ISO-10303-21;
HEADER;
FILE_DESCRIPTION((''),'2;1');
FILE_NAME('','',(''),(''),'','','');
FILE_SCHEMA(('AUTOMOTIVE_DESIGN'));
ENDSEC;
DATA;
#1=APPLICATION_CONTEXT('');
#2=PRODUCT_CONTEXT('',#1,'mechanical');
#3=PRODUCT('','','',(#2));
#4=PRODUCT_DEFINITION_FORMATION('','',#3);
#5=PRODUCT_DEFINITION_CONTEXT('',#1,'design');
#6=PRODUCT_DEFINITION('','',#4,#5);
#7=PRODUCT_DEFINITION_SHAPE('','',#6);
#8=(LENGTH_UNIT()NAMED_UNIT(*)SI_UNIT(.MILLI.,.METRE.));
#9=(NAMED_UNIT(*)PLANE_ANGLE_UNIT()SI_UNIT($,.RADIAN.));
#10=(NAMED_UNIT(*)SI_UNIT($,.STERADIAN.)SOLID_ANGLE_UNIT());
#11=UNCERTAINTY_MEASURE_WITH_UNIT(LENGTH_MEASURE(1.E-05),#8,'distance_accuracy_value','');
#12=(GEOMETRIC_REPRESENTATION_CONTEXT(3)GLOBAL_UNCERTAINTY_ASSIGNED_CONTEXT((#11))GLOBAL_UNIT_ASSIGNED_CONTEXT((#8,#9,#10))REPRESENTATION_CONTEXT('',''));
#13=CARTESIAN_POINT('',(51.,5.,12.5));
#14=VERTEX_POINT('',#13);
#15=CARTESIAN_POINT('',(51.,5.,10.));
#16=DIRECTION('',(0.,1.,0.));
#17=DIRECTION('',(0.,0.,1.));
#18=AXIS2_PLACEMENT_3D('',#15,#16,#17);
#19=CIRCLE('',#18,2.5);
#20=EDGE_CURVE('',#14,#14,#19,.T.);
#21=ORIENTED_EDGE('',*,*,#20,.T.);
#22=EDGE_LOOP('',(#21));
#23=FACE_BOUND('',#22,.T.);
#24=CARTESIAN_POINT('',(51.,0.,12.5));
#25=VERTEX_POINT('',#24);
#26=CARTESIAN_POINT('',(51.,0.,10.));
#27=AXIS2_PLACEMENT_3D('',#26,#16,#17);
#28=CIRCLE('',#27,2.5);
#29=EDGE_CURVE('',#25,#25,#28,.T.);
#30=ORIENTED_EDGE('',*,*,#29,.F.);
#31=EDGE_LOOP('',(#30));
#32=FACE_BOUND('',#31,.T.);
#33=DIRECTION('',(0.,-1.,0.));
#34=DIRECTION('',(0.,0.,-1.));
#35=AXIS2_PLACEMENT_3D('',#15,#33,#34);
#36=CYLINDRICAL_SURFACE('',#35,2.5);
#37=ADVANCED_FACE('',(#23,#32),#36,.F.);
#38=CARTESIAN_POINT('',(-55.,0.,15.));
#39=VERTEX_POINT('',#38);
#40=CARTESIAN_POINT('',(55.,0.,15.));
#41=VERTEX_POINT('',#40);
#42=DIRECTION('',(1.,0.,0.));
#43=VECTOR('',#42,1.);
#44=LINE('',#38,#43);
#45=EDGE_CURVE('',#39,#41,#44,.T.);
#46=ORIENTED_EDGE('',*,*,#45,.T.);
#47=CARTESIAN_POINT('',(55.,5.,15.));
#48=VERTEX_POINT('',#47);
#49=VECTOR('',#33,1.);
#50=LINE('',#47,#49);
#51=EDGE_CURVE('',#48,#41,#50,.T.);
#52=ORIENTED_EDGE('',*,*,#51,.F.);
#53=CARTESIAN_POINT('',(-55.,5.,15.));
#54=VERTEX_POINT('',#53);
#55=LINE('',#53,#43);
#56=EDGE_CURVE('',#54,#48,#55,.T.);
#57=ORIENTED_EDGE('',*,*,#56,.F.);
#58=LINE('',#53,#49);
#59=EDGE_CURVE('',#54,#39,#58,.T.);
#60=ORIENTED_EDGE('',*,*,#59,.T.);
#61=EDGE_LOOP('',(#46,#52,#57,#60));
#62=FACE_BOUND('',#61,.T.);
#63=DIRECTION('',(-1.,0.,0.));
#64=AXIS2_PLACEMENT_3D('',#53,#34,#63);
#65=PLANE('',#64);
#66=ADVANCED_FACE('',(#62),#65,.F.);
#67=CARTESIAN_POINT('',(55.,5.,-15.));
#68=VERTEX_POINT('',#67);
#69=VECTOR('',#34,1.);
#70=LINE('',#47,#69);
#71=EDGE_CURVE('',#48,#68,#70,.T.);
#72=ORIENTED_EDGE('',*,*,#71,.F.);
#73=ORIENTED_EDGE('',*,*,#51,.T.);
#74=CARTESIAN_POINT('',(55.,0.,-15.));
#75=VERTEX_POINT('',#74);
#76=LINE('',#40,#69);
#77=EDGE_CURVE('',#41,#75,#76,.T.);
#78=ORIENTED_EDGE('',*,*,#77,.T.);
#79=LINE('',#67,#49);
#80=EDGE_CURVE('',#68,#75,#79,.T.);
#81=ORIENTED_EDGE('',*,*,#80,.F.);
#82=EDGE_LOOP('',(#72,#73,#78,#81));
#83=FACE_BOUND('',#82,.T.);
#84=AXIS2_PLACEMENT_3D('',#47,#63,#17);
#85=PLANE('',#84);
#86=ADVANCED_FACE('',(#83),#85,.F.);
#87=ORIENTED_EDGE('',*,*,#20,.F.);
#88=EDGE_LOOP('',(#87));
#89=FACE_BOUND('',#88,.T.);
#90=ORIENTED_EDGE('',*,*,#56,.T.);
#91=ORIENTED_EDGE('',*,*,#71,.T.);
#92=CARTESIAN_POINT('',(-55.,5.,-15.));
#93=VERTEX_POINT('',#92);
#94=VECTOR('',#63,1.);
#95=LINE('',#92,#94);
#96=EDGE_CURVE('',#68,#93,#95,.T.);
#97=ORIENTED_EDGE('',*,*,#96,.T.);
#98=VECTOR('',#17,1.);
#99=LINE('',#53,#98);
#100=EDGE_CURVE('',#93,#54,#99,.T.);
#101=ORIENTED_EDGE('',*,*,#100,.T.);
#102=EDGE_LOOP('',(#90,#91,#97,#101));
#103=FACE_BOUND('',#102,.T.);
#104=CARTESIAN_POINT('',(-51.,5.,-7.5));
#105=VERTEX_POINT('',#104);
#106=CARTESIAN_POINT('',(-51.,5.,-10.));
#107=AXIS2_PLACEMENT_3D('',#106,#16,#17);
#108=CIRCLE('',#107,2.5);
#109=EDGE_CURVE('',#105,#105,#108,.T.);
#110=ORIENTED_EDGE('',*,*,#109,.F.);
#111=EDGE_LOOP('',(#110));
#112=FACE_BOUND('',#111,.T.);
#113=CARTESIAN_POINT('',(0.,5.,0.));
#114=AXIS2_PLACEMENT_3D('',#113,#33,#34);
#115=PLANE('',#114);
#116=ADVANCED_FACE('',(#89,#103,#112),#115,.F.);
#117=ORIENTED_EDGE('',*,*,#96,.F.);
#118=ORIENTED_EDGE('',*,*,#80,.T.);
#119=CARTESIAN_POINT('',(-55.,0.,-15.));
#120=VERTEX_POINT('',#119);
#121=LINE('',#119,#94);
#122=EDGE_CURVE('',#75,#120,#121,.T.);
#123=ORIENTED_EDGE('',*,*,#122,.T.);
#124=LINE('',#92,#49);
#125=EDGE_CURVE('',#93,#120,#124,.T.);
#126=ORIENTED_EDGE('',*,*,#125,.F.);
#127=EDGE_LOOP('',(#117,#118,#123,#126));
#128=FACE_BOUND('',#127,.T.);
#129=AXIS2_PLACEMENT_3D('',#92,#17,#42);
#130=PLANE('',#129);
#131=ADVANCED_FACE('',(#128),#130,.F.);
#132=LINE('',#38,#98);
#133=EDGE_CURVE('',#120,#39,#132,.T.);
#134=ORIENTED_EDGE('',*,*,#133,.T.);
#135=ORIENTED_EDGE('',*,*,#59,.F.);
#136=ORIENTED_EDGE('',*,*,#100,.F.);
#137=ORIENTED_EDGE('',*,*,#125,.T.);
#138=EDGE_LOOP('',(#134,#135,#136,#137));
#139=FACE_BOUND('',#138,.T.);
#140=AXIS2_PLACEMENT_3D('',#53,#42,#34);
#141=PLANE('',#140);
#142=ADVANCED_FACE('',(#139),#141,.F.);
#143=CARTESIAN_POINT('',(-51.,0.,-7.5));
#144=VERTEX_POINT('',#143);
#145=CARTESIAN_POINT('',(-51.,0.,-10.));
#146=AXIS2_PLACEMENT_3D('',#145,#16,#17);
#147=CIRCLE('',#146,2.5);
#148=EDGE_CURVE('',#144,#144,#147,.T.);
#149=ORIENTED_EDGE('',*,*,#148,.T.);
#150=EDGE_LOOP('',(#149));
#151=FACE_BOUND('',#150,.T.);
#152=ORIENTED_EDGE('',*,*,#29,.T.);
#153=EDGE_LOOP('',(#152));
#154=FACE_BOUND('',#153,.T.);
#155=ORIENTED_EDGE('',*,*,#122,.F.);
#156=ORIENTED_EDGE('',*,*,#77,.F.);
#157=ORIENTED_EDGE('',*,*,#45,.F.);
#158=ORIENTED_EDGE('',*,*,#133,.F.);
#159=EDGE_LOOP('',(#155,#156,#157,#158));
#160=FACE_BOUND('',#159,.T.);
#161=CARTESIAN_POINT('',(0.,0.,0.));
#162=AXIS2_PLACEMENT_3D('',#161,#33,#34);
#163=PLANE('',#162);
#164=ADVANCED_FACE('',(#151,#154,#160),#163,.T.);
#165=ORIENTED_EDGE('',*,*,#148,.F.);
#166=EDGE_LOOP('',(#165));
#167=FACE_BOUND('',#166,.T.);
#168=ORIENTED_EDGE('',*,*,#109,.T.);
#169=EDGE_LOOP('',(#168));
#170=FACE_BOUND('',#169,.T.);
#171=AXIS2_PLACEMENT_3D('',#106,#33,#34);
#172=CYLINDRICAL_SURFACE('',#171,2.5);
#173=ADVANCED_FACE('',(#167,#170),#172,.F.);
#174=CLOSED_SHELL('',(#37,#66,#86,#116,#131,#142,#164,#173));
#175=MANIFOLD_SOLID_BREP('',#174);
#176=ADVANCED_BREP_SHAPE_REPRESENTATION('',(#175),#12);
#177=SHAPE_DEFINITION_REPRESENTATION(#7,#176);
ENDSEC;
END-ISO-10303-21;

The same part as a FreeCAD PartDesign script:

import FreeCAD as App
import Part
import Sketcher
from FreeCAD import Vector


def add_polygon(sketch, points):
    """Adds a closed chain of lines whose ends are joined by coincident constraints."""
    first, n = sketch.GeometryCount, len(points)
    for a, b in zip(points, points[1:] + points[:1]):
        sketch.addGeometry(Part.LineSegment(App.Vector(*a, 0), App.Vector(*b, 0)), False)
    for i in range(n):
        sketch.addConstraint(Sketcher.Constraint("Coincident", first + i, 2, first + (i + 1) % n, 1))

doc = App.newDocument("Part")
body = doc.addObject("PartDesign::Body", "Body")

# Sketch on XZ plane
sketch1 = doc.addObject("Sketcher::SketchObject", "Sketch")
body.addObject(sketch1)
sketch1.AttachmentSupport = (doc.XZ_Plane, [""])
sketch1.MapMode = "FlatFace"
add_polygon(sketch1, [(-55, -15), (-55, 15), (55, 15), (55, -15)])  # lines 0-3
sketch1.addGeometry(Part.Circle(Vector(51, 10, 0), Vector(0, 0, 1), 2.5), False)  # 4
sketch1.addGeometry(Part.Circle(Vector(-51, -10, 0), Vector(0, 0, 1), 2.5), False)  # 5
sketch1.addConstraint([
    Sketcher.Constraint("Vertical", 0),
    Sketcher.Constraint("Horizontal", 1),
    Sketcher.Constraint("Vertical", 2),
    Sketcher.Constraint("Horizontal", 3),
    Sketcher.Constraint("Equal", 4, 5),
    Sketcher.Constraint("Symmetric", 4, 3, 5, 3, -1, 1),
    Sketcher.Constraint("Symmetric", 0, 2, 2, 2, -1, 1),
    Sketcher.Constraint("Diameter", 4, 5.0),
    Sketcher.Constraint("DistanceX", 1, 1, 1, 2, 110.0),
    Sketcher.Constraint("DistanceY", 0, 1, 0, 2, 30.0),
    Sketcher.Constraint("DistanceX", -1, 1, 4, 3, 51.0),
    Sketcher.Constraint("DistanceY", -1, 1, 4, 3, 10.0),
])
pad1 = doc.addObject("PartDesign::Pad", "Pad")
body.addObject(pad1)
pad1.Profile = sketch1
pad1.Length = 5
pad1.Reversed = True

doc.recompute()
